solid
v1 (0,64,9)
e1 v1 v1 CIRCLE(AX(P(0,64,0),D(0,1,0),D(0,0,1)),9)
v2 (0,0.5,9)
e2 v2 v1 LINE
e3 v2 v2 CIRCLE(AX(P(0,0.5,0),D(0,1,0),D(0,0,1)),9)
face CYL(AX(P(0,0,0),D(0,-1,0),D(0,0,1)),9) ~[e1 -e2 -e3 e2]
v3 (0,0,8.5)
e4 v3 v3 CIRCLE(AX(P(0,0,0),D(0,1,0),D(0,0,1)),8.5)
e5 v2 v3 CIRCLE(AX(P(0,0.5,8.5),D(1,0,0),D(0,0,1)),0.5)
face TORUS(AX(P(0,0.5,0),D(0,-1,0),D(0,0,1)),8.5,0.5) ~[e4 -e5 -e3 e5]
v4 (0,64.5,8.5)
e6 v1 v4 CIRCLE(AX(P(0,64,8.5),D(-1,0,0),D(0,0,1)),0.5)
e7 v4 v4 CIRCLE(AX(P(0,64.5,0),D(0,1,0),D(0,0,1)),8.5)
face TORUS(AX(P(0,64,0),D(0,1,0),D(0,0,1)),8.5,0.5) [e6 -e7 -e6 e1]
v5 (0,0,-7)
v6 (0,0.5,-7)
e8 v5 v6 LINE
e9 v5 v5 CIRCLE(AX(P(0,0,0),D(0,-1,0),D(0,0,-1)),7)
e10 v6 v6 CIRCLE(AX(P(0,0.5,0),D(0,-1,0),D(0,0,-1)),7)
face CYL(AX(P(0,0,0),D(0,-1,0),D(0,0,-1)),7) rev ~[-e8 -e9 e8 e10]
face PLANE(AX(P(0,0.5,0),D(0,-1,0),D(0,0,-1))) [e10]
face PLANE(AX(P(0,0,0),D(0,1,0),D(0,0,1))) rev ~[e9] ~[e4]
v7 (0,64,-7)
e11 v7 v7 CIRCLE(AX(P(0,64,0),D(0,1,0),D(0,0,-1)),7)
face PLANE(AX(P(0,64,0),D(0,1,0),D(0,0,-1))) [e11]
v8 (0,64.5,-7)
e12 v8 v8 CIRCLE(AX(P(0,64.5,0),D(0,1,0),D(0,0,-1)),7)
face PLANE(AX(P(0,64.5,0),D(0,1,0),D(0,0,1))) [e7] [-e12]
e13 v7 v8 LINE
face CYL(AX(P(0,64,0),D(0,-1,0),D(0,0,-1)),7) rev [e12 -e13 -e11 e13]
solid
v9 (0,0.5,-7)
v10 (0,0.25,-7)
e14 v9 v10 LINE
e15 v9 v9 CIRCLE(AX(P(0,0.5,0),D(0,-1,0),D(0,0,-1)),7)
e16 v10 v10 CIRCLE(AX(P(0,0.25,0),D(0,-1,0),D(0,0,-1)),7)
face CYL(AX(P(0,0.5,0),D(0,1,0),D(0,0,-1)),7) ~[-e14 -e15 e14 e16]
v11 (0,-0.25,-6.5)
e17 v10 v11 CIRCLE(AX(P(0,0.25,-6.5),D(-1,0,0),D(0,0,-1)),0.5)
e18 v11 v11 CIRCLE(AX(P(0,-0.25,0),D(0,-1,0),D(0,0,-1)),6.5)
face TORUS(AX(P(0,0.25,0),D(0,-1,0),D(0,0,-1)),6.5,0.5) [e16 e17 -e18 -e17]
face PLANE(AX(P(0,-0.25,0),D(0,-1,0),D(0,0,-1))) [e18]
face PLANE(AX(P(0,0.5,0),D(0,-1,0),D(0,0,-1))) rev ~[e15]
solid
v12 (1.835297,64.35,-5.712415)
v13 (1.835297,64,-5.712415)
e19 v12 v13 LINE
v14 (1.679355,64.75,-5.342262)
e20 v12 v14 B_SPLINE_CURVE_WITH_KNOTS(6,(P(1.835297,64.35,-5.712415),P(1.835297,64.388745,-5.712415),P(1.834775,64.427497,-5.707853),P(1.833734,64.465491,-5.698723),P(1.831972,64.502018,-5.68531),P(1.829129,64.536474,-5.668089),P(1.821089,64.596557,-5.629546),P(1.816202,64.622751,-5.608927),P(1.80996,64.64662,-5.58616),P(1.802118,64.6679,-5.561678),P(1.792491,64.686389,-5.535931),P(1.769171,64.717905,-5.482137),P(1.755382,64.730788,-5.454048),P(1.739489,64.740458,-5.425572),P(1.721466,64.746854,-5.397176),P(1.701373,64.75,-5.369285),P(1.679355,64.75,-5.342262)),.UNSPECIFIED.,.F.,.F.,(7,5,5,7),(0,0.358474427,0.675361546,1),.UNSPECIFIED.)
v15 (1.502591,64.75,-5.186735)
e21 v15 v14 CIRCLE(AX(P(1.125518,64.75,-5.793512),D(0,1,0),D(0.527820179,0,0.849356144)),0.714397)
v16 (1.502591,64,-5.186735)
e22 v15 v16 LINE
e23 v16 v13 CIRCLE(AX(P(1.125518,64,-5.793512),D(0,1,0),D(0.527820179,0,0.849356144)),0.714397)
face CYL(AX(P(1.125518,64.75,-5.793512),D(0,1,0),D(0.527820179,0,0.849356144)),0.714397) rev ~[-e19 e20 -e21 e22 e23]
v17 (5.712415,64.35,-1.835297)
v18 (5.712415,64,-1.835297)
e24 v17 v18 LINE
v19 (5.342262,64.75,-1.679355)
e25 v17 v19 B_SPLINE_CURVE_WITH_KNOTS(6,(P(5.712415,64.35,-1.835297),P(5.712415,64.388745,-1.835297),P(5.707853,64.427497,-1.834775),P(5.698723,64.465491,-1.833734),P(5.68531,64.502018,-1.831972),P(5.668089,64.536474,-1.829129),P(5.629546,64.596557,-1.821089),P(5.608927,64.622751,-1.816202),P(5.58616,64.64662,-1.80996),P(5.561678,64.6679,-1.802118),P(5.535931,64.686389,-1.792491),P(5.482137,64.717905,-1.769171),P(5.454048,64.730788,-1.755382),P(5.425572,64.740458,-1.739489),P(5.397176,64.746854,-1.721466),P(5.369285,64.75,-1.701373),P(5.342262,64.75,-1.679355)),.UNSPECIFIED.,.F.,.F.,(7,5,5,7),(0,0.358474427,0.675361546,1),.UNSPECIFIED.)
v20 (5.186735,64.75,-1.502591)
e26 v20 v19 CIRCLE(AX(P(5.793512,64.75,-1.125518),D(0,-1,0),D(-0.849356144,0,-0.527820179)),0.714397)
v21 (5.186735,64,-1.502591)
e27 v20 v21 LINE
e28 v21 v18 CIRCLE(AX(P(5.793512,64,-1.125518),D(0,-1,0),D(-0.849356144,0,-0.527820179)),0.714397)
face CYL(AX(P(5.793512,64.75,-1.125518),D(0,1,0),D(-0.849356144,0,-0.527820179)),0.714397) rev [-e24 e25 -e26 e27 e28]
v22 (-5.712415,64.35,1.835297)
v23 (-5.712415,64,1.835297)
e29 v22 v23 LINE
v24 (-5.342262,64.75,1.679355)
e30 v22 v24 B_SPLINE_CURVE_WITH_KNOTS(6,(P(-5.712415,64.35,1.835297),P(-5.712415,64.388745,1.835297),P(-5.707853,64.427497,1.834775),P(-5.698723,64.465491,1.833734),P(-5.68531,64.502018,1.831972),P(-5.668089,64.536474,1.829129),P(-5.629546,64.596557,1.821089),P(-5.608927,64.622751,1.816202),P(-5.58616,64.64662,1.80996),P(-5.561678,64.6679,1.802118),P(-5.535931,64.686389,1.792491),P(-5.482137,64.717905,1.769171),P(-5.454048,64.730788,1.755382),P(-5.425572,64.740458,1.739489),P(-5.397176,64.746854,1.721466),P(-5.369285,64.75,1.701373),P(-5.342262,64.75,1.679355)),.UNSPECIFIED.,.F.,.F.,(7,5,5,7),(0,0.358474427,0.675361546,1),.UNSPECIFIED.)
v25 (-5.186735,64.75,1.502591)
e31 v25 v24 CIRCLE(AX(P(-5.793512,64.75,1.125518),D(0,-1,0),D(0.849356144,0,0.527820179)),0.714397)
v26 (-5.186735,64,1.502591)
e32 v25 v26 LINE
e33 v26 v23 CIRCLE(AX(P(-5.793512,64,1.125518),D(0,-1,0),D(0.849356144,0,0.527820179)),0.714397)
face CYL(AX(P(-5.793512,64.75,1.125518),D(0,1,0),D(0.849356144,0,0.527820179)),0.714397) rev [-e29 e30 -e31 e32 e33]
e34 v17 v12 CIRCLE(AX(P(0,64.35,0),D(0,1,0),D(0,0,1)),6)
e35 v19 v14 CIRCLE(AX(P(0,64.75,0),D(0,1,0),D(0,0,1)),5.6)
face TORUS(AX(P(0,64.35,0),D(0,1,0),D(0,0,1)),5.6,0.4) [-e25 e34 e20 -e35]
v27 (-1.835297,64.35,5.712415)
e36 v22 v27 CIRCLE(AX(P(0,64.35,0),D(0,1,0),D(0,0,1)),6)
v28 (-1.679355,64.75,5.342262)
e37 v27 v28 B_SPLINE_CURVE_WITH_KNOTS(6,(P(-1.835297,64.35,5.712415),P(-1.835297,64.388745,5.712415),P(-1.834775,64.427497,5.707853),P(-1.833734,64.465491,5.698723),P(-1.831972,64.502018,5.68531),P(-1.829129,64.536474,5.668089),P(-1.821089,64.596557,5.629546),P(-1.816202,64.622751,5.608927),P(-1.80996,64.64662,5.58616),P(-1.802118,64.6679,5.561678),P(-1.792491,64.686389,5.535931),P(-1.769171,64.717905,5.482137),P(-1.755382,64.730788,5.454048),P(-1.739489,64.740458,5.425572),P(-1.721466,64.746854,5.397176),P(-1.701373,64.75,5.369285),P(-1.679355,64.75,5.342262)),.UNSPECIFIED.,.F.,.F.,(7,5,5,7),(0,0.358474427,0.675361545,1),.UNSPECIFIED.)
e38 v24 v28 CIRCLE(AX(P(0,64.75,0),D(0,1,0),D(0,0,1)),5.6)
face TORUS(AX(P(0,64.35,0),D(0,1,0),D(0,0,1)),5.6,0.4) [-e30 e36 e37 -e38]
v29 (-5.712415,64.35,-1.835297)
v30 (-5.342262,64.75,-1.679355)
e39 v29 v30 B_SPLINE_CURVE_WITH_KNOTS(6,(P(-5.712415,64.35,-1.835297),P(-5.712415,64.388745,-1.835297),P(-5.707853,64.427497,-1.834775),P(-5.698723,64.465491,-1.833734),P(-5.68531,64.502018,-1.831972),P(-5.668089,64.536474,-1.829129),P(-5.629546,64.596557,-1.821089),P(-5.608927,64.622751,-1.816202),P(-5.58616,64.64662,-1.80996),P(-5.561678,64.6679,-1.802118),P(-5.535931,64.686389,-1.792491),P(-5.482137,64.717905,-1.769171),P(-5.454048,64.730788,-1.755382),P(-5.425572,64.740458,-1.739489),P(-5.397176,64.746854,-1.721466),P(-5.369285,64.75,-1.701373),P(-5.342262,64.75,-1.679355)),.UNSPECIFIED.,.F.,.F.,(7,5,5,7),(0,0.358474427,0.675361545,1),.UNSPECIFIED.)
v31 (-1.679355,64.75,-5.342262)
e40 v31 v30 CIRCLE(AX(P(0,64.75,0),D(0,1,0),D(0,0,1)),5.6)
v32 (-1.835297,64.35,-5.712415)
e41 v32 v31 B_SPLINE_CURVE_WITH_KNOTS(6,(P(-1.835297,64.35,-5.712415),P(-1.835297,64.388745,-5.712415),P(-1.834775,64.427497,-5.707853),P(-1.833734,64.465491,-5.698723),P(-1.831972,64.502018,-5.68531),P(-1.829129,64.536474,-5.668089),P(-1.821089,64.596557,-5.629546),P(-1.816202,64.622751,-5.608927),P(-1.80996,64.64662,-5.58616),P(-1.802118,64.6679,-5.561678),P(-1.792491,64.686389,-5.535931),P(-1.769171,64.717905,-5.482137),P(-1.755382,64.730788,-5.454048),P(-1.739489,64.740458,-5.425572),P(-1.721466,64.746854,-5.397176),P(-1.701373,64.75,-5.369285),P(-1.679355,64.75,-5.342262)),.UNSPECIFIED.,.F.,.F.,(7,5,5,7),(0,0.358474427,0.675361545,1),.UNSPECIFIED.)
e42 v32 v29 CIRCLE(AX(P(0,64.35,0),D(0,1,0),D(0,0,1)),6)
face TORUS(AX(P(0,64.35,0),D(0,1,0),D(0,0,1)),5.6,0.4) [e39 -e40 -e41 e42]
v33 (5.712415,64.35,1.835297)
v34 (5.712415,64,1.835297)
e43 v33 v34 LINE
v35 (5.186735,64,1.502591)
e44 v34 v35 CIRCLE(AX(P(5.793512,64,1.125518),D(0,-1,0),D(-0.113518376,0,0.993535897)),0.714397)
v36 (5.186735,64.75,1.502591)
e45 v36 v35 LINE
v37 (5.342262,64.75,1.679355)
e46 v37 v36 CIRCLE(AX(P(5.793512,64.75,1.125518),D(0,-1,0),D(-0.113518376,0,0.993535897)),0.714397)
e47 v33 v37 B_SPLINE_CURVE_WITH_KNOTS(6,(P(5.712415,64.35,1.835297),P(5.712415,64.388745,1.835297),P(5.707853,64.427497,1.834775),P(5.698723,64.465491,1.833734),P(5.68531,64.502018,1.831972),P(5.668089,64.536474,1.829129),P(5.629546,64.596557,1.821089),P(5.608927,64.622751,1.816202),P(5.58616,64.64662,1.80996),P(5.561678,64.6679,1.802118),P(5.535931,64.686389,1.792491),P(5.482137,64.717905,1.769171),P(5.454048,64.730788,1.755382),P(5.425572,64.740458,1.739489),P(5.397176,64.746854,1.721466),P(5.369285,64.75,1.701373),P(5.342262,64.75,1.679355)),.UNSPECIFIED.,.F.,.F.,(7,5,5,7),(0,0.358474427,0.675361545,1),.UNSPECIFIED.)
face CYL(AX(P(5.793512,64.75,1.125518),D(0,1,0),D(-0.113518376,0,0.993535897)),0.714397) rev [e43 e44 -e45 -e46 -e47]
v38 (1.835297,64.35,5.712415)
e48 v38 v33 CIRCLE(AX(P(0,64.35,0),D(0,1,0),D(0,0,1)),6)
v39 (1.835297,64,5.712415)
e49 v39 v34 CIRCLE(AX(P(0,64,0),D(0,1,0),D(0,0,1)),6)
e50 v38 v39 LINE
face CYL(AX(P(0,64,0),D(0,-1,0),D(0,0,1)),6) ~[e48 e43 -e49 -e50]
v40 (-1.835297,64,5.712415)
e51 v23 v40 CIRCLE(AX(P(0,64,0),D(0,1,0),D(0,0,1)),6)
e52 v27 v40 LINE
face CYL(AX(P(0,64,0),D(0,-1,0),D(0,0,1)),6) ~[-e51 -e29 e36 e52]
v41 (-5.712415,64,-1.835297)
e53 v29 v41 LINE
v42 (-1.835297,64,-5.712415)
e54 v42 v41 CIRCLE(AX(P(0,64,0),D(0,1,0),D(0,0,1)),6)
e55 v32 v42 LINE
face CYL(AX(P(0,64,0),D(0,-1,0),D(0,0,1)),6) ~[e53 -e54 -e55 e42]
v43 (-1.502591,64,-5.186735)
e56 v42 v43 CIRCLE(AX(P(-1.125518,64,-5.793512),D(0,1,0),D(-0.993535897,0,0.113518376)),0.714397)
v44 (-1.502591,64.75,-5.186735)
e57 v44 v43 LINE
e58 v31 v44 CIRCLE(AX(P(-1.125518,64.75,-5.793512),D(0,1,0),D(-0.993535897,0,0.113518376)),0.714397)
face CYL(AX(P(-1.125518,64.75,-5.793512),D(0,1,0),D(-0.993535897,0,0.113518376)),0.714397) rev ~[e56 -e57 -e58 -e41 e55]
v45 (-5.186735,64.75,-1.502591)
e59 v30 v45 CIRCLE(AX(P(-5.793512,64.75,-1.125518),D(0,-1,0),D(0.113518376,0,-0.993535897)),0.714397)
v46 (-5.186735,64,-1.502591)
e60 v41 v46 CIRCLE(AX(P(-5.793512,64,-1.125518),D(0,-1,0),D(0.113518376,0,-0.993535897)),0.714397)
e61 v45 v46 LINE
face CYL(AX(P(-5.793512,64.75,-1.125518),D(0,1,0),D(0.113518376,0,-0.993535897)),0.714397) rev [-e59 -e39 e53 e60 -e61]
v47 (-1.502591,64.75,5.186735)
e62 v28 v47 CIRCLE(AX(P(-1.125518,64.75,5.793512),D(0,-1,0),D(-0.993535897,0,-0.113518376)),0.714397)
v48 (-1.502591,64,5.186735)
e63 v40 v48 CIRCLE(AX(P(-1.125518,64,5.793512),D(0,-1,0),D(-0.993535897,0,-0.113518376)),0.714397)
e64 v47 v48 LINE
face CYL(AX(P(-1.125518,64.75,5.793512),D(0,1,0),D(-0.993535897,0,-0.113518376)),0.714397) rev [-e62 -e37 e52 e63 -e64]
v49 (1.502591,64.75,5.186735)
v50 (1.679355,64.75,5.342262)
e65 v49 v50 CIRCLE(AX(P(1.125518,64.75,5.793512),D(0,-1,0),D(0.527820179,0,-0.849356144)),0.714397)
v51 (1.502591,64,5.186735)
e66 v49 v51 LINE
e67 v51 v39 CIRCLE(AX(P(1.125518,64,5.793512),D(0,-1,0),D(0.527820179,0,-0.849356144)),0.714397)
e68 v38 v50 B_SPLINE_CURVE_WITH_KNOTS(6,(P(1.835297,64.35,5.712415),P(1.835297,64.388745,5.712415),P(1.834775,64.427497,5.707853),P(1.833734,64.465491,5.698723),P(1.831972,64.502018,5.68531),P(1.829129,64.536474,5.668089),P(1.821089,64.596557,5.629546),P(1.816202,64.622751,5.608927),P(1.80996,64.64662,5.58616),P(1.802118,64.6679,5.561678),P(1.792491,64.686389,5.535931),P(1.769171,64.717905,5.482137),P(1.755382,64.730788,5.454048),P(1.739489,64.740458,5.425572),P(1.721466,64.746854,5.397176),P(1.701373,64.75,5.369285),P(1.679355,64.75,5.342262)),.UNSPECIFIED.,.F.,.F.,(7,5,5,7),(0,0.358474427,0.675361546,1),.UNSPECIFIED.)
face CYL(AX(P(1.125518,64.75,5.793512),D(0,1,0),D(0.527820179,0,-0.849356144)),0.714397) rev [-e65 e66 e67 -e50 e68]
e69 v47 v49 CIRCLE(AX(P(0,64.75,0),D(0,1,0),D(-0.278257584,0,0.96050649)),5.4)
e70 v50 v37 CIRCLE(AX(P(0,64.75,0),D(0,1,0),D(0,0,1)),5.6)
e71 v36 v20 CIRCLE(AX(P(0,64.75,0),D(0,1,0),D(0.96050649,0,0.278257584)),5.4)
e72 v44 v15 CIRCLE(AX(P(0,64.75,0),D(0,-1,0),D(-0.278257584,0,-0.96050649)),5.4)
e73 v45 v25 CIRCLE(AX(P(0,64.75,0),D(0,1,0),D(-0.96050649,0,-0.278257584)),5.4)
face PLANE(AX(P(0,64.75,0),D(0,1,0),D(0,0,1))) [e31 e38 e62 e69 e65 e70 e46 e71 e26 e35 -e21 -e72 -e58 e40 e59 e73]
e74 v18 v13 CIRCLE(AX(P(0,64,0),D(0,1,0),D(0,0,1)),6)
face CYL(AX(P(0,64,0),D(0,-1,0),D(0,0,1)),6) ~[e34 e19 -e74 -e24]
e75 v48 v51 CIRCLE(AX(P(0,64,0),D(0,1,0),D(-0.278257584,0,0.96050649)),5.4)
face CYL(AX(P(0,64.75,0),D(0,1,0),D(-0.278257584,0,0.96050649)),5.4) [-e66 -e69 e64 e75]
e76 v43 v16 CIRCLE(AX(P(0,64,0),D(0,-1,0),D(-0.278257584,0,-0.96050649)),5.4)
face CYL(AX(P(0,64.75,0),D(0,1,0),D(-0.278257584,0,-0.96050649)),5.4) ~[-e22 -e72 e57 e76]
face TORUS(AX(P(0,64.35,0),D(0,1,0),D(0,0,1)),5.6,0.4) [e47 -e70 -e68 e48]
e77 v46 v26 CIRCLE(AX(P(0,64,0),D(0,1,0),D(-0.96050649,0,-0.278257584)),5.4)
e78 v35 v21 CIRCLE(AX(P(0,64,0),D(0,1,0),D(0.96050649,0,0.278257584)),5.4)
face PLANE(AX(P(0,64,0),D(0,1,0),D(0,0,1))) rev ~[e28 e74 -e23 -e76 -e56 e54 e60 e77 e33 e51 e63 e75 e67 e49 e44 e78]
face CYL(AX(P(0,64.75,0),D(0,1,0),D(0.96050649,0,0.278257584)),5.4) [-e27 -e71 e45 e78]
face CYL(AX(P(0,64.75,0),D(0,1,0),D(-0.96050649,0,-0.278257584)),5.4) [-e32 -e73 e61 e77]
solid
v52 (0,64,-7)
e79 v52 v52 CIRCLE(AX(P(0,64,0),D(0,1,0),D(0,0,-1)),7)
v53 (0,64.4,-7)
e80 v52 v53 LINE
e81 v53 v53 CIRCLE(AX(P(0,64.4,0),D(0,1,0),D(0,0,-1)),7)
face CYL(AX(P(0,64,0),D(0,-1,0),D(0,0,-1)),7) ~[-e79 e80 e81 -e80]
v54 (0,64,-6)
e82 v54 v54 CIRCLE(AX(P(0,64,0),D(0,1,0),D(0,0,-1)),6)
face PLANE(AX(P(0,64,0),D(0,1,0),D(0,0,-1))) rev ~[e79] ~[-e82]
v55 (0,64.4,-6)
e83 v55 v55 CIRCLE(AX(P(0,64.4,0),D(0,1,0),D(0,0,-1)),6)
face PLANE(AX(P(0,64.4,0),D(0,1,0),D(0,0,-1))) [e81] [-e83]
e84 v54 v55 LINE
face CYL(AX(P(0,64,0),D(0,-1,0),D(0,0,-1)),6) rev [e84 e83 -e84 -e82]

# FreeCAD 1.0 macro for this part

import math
import FreeCAD as App
import Part
import Sketcher

V = App.Vector
Q = App.Units.Quantity


def edges_at(feature, points):
    """Names of the edges that pass closest to the given points."""
    edges = feature.Shape.Edges
    near = lambda p: min(range(len(edges)), key=lambda i: edges[i].distToShape(Part.Vertex(*p))[0])
    return sorted({f"Edge{near(p) + 1}" for p in points})

doc = App.newDocument("Part")
body = doc.addObject("PartDesign::Body", "Body")

sketch1 = body.newObject("Sketcher::SketchObject", "Sketch")
sketch1.AttachmentSupport = (doc.getObject("XZ_Plane"), [""])
sketch1.MapMode = "FlatFace"
sketch1.addGeometry(Part.Circle(V(0, 0, 0), V(0, 0, 1), 9), False)
sketch1.addConstraint([
    Sketcher.Constraint("Coincident", 0, 3, -1, 1),
    Sketcher.Constraint("Diameter", 0, Q("18 mm")),
])
pad1 = body.newObject("PartDesign::Pad", "Pad")
pad1.Profile = sketch1
pad1.Length = 64.5
pad1.Reversed = True

sketch2 = body.newObject("Sketcher::SketchObject", "Sketch001")
sketch2.AttachmentSupport = (doc.getObject("XZ_Plane"), [""])
sketch2.MapMode = "FlatFace"
sketch2.addGeometry(Part.Circle(V(0, 0, 0), V(0, 0, 1), 7), False)
sketch2.addConstraint([
    Sketcher.Constraint("Coincident", 0, 3, -1, 1),
    Sketcher.Constraint("Diameter", 0, Q("14 mm")),
])
pocket1 = body.newObject("PartDesign::Pocket", "Pocket")
pocket1.Profile = sketch2
pocket1.Length = 0.5

sketch3 = body.newObject("Sketcher::SketchObject", "Sketch002")
sketch3.AttachmentSupport = (doc.getObject("XZ_Plane"), [""])
sketch3.MapMode = "FlatFace"
sketch3.AttachmentOffset = App.Placement(V(0, 0, -64), App.Rotation())
sketch3.addGeometry(Part.Circle(V(0, 0, 0), V(0, 0, 1), 7), False)
sketch3.addConstraint([
    Sketcher.Constraint("Coincident", 0, 3, -1, 1),
    Sketcher.Constraint("Diameter", 0, Q("14 mm")),
])
pocket2 = body.newObject("PartDesign::Pocket", "Pocket001")
pocket2.Profile = sketch3
pocket2.Length = 0.5
doc.recompute()

fillet = body.newObject("PartDesign::Fillet", "Fillet")
fillet.Base = (pocket2, edges_at(pocket2, [(0, 0, -9), (0, 64.5, -9)]))
fillet.Radius = 0.5
body2 = doc.addObject("PartDesign::Body", "Body001")

sketch4 = body2.newObject("Sketcher::SketchObject", "Sketch003")
sketch4.AttachmentSupport = (doc.getObject("XZ_Plane001"), [""])
sketch4.MapMode = "FlatFace"
sketch4.AttachmentOffset = App.Placement(V(0, 0, -0.5), App.Rotation())
sketch4.addGeometry(Part.Circle(V(0, 0, 0), V(0, 0, 1), 7), False)
sketch4.addConstraint([
    Sketcher.Constraint("Coincident", 0, 3, -1, 1),
    Sketcher.Constraint("Diameter", 0, Q("14 mm")),
])
pad2 = body2.newObject("PartDesign::Pad", "Pad001")
pad2.Profile = sketch4
pad2.Length = 0.75
doc.recompute()

fillet2 = body2.newObject("PartDesign::Fillet", "Fillet001")
fillet2.Base = (pad2, edges_at(pad2, [(0, -0.25, 7)]))
fillet2.Radius = 0.5
body3 = doc.addObject("PartDesign::Body", "Body002")

sketch5 = body3.newObject("Sketcher::SketchObject", "Sketch004")
sketch5.AttachmentSupport = (doc.getObject("XZ_Plane002"), [""])
sketch5.MapMode = "FlatFace"
sketch5.AttachmentOffset = App.Placement(V(0, 0, -64), App.Rotation())
sketch5.addGeometry([
    Part.Circle(V(0, 0, 0), V(0, 0, 1), 7),
    Part.Circle(V(0, 0, 0), V(0, 0, 1), 6),
], False)
sketch5.addConstraint([
    Sketcher.Constraint("Coincident", 0, 3, -1, 1),
    Sketcher.Constraint("Coincident", 1, 3, -1, 1),
    Sketcher.Constraint("Diameter", 0, Q("14 mm")),
    Sketcher.Constraint("Diameter", 1, Q("12 mm")),
])
pad3 = body3.newObject("PartDesign::Pad", "Pad002")
pad3.Profile = sketch5
pad3.Length = 0.4
pad3.Reversed = True
body4 = doc.addObject("PartDesign::Body", "Body003")

sketch6 = body4.newObject("Sketcher::SketchObject", "Sketch005")
sketch6.AttachmentSupport = (doc.getObject("XZ_Plane003"), [""])
sketch6.MapMode = "FlatFace"
sketch6.AttachmentOffset = App.Placement(V(0, 0, -64), App.Rotation())
sketch6.addGeometry(Part.Circle(V(0, 0, 0), V(0, 0, 1), 6), False)
sketch6.addConstraint([
    Sketcher.Constraint("Coincident", 0, 3, -1, 1),
    Sketcher.Constraint("Diameter", 0, Q("12 mm")),
])
pad4 = body4.newObject("PartDesign::Pad", "Pad003")
pad4.Profile = sketch6
pad4.Length = 0.75
pad4.Reversed = True
doc.recompute()

fillet3 = body4.newObject("PartDesign::Fillet", "Fillet002")
fillet3.Base = (pad4, edges_at(pad4, [(0, 64.75, -6)]))
fillet3.Radius = 0.4

sketch7 = body4.newObject("Sketcher::SketchObject", "Sketch006")
sketch7.AttachmentSupport = (doc.getObject("XZ_Plane003"), [""])
sketch7.MapMode = "FlatFace"
sketch7.AttachmentOffset = App.Placement(V(0, 0, -64.75), App.Rotation())
sketch7.addGeometry([
    Part.ArcOfCircle(Part.Circle(V(-1.1, -5.8, 0), V(0, 0, 1), 0.7), math.radians(122), math.radians(173)),
    Part.ArcOfCircle(Part.Circle(V(0, 0, 0), V(0, 0, 1), 5.4), math.radians(-106), math.radians(-74)),
    Part.ArcOfCircle(Part.Circle(V(1.1, -5.8, 0), V(0, 0, 1), 0.7), math.radians(7), math.radians(58)),
    Part.ArcOfCircle(Part.Circle(V(0, 0, 0), V(0, 0, 1), 6), math.radians(-108), math.radians(-72)),
    Part.ArcOfCircle(Part.Circle(V(5.8, 1.1, 0), V(0, 0, 1), 0.7), math.radians(97), math.radians(148)),
    Part.ArcOfCircle(Part.Circle(V(0, 0, 0), V(0, 0, 1), 6), math.radians(-18), math.radians(18)),
    Part.ArcOfCircle(Part.Circle(V(5.8, -1.1, 0), V(0, 0, 1), 0.7), math.radians(-148), math.radians(-97)),
    Part.ArcOfCircle(Part.Circle(V(0, 0, 0), V(0, 0, 1), 5.4), math.radians(-16), math.radians(16)),
    Part.ArcOfCircle(Part.Circle(V(-1.1, 5.8, 0), V(0, 0, 1), 0.7), math.radians(-173), math.radians(-122)),
    Part.ArcOfCircle(Part.Circle(V(0, 0, 0), V(0, 0, 1), 6), math.radians(72), math.radians(108)),
    Part.ArcOfCircle(Part.Circle(V(1.1, 5.8, 0), V(0, 0, 1), 0.7), math.radians(-58), math.radians(-7)),
    Part.ArcOfCircle(Part.Circle(V(0, 0, 0), V(0, 0, 1), 5.4), math.radians(74), math.radians(106)),
    Part.ArcOfCircle(Part.Circle(V(-5.8, -1.1, 0), V(0, 0, 1), 0.7), math.radians(-83), math.radians(-32)),
    Part.ArcOfCircle(Part.Circle(V(0, 0, 0), V(0, 0, 1), 6), math.radians(162), math.radians(198)),
    Part.ArcOfCircle(Part.Circle(V(-5.8, 1.1, 0), V(0, 0, 1), 0.7), math.radians(32), math.radians(83)),
    Part.ArcOfCircle(Part.Circle(V(0, 0, 0), V(0, 0, 1), 5.4), math.radians(164), math.radians(196)),
], False)
sketch7.addConstraint([
    Sketcher.Constraint("Coincident", 0, 1, 1, 1),
    Sketcher.Constraint("Coincident", 1, 2, 2, 2),
    Sketcher.Constraint("Coincident", 2, 1, 3, 2),
    Sketcher.Constraint("Coincident", 3, 1, 0, 2),
    Sketcher.Constraint("Coincident", 4, 1, 5, 2),
    Sketcher.Constraint("Coincident", 5, 1, 6, 2),
    Sketcher.Constraint("Coincident", 6, 1, 7, 1),
    Sketcher.Constraint("Coincident", 7, 2, 4, 2),
    Sketcher.Constraint("Coincident", 8, 1, 9, 2),
    Sketcher.Constraint("Coincident", 9, 1, 10, 2),
    Sketcher.Constraint("Coincident", 10, 1, 11, 1),
    Sketcher.Constraint("Coincident", 11, 2, 8, 2),
    Sketcher.Constraint("Coincident", 12, 1, 13, 2),
    Sketcher.Constraint("Coincident", 13, 1, 14, 2),
    Sketcher.Constraint("Coincident", 14, 1, 15, 1),
    Sketcher.Constraint("Coincident", 15, 2, 12, 2),
    Sketcher.Constraint("Coincident", 1, 3, -1, 1),
    Sketcher.Constraint("Coincident", 3, 3, -1, 1),
    Sketcher.Constraint("Coincident", 5, 3, -1, 1),
    Sketcher.Constraint("Coincident", 7, 3, -1, 1),
    Sketcher.Constraint("Coincident", 9, 3, -1, 1),
    Sketcher.Constraint("Coincident", 11, 3, -1, 1),
    Sketcher.Constraint("Coincident", 13, 3, -1, 1),
    Sketcher.Constraint("Coincident", 15, 3, -1, 1),
    Sketcher.Constraint("Equal", 0, 2),
    Sketcher.Constraint("Equal", 2, 4),
    Sketcher.Constraint("Equal", 3, 5),
    Sketcher.Constraint("Equal", 4, 6),
    Sketcher.Constraint("Equal", 1, 7),
    Sketcher.Constraint("Equal", 6, 8),
    Sketcher.Constraint("Equal", 5, 9),
    Sketcher.Constraint("Equal", 8, 10),
    Sketcher.Constraint("Equal", 7, 11),
    Sketcher.Constraint("Equal", 10, 12),
    Sketcher.Constraint("Equal", 9, 13),
    Sketcher.Constraint("Equal", 12, 14),
    Sketcher.Constraint("Equal", 11, 15),
    Sketcher.Constraint("Symmetric", 2, 3, 8, 3, -1, 1),
    Sketcher.Constraint("Symmetric", 0, 3, 10, 3, -1, 1),
    Sketcher.Constraint("Symmetric", 4, 3, 12, 3, -1, 1),
    Sketcher.Constraint("Symmetric", 6, 3, 14, 3, -1, 1),
    Sketcher.Constraint("Symmetric", 0, 3, 2, 3, -2),
    Sketcher.Constraint("Symmetric", 6, 3, 12, 3, -2),
    Sketcher.Constraint("Radius", 3, Q("6 mm")),
    Sketcher.Constraint("Radius", 1, Q("5.4 mm")),
    Sketcher.Constraint("Radius", 0, Q("0.714397 mm")),
    Sketcher.Constraint("DistanceX", 0, 1, -1, 1, Q("1.502591 mm")),
    Sketcher.Constraint("DistanceY", 6, 1, -1, 1, Q("1.502591 mm")),
    Sketcher.Constraint("DistanceY", 2, 3, 4, 3, Q("6.91903 mm")),
    Sketcher.Constraint("DistanceX", 0, 3, 4, 3, Q("6.91903 mm")),
])
pocket3 = body4.newObject("PartDesign::Pocket", "Pocket002")
pocket3.Profile = sketch7
pocket3.Length = 0.75
pocket3.Reversed = True

doc.recompute()
